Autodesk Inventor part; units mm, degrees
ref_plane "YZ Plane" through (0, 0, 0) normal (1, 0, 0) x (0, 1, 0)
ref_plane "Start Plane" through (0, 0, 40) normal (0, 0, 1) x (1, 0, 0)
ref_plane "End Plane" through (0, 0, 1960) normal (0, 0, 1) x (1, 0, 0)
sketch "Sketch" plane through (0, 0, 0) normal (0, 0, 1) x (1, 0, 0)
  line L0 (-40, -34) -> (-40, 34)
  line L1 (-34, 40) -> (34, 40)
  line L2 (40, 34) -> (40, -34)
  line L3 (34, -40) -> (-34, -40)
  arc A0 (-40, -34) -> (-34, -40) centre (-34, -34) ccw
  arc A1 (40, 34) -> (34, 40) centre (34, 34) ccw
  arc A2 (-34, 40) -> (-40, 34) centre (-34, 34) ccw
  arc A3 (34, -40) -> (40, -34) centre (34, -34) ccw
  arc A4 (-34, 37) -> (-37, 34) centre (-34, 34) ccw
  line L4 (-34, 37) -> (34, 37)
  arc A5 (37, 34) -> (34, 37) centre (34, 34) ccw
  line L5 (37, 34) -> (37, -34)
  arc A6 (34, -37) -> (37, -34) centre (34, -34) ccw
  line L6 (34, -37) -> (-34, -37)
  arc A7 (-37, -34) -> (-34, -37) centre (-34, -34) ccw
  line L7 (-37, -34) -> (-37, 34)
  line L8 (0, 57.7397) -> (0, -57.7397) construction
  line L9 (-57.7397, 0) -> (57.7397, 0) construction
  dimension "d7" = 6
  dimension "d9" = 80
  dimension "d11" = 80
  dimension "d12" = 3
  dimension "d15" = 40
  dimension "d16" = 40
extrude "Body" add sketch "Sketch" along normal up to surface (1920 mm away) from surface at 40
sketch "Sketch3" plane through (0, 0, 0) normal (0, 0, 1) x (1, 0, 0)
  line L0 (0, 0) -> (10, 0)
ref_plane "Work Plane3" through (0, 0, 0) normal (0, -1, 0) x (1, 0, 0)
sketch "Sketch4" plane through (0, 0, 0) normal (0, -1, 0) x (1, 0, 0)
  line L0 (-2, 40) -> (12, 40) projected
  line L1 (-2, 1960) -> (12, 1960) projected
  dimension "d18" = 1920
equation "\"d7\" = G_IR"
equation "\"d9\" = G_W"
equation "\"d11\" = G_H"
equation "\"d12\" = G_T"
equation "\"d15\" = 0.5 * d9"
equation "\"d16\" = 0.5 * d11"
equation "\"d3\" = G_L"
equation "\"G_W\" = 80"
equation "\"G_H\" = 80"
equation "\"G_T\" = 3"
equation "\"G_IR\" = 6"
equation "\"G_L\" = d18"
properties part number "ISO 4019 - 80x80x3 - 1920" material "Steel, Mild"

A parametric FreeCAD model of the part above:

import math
import FreeCAD as App
import Part
import Sketcher
Q = App.Units.Quantity

doc = App.newDocument("Part")
body = doc.addObject("PartDesign::Body", "Body")

# Sketch on XY plane
sketch1 = doc.addObject("Sketcher::SketchObject", "Sketch")
body.addObject(sketch1)
sketch1.AttachmentSupport = (doc.XY_Plane, [""])
sketch1.MapMode = "FlatFace"
sketch1.AttachmentOffset = App.Placement(App.Vector(0, 0, 40), App.Rotation())
sketch1.addGeometry(Part.LineSegment(App.Vector(-40, 34, 0), App.Vector(-40, -34, 0)), False)
sketch1.addGeometry(Part.ArcOfCircle(Part.Circle(App.Vector(-34, -34, 0), App.Vector(0, 0, 1), 6), math.radians(180), math.radians(270)), False)
sketch1.addGeometry(Part.LineSegment(App.Vector(-34, -40, 0), App.Vector(34, -40, 0)), False)
sketch1.addGeometry(Part.ArcOfCircle(Part.Circle(App.Vector(34, -34, 0), App.Vector(0, 0, 1), 6), math.radians(-90), math.radians(0)), False)
sketch1.addGeometry(Part.LineSegment(App.Vector(40, -34, 0), App.Vector(40, 34, 0)), False)
sketch1.addGeometry(Part.ArcOfCircle(Part.Circle(App.Vector(34, 34, 0), App.Vector(0, 0, 1), 6), math.radians(0), math.radians(90)), False)
sketch1.addGeometry(Part.LineSegment(App.Vector(34, 40, 0), App.Vector(-34, 40, 0)), False)
sketch1.addGeometry(Part.ArcOfCircle(Part.Circle(App.Vector(-34, 34, 0), App.Vector(0, 0, 1), 6), math.radians(90), math.radians(180)), False)
sketch1.addGeometry(Part.ArcOfCircle(Part.Circle(App.Vector(-34, 34, 0), App.Vector(0, 0, 1), 3), math.radians(90), math.radians(180)), False)
sketch1.addGeometry(Part.LineSegment(App.Vector(-34, 37, 0), App.Vector(34, 37, 0)), False)
sketch1.addGeometry(Part.ArcOfCircle(Part.Circle(App.Vector(34, 34, 0), App.Vector(0, 0, 1), 3), math.radians(0), math.radians(90)), False)
sketch1.addGeometry(Part.LineSegment(App.Vector(37, 34, 0), App.Vector(37, -34, 0)), False)
sketch1.addGeometry(Part.ArcOfCircle(Part.Circle(App.Vector(34, -34, 0), App.Vector(0, 0, 1), 3), math.radians(-90), math.radians(0)), False)
sketch1.addGeometry(Part.LineSegment(App.Vector(34, -37, 0), App.Vector(-34, -37, 0)), False)
sketch1.addGeometry(Part.ArcOfCircle(Part.Circle(App.Vector(-34, -34, 0), App.Vector(0, 0, 1), 3), math.radians(180), math.radians(270)), False)
sketch1.addGeometry(Part.LineSegment(App.Vector(-37, -34, 0), App.Vector(-37, 34, 0)), False)
sketch1.addConstraint(Sketcher.Constraint("Tangent", 0, 2, 1, 1))
sketch1.addConstraint(Sketcher.Constraint("Tangent", 1, 2, 2, 1))
sketch1.addConstraint(Sketcher.Constraint("Tangent", 2, 2, 3, 1))
sketch1.addConstraint(Sketcher.Constraint("Tangent", 3, 2, 4, 1))
sketch1.addConstraint(Sketcher.Constraint("Tangent", 4, 2, 5, 1))
sketch1.addConstraint(Sketcher.Constraint("Tangent", 5, 2, 6, 1))
sketch1.addConstraint(Sketcher.Constraint("Tangent", 6, 2, 7, 1))
sketch1.addConstraint(Sketcher.Constraint("Tangent", 7, 2, 0, 1))
sketch1.addConstraint(Sketcher.Constraint("Tangent", 8, 1, 9, 1))
sketch1.addConstraint(Sketcher.Constraint("Tangent", 9, 2, 10, 2))
sketch1.addConstraint(Sketcher.Constraint("Tangent", 10, 1, 11, 1))
sketch1.addConstraint(Sketcher.Constraint("Tangent", 11, 2, 12, 2))
sketch1.addConstraint(Sketcher.Constraint("Tangent", 12, 1, 13, 1))
sketch1.addConstraint(Sketcher.Constraint("Tangent", 13, 2, 14, 2))
sketch1.addConstraint(Sketcher.Constraint("Tangent", 14, 1, 15, 1))
sketch1.addConstraint(Sketcher.Constraint("Tangent", 15, 2, 8, 2))
sketch1.addConstraint(Sketcher.Constraint("Vertical", 0))
sketch1.addConstraint(Sketcher.Constraint("Horizontal", 2))
sketch1.addConstraint(Sketcher.Constraint("Vertical", 4))
sketch1.addConstraint(Sketcher.Constraint("Horizontal", 6))
sketch1.addConstraint(Sketcher.Constraint("Horizontal", 9))
sketch1.addConstraint(Sketcher.Constraint("Vertical", 11))
sketch1.addConstraint(Sketcher.Constraint("Horizontal", 13))
sketch1.addConstraint(Sketcher.Constraint("Vertical", 15))
sketch1.addConstraint(Sketcher.Constraint("Coincident", 8, 3, 7, 3))
sketch1.addConstraint(Sketcher.Constraint("Coincident", 10, 3, 5, 3))
sketch1.addConstraint(Sketcher.Constraint("Coincident", 12, 3, 3, 3))
sketch1.addConstraint(Sketcher.Constraint("Equal", 1, 3))
sketch1.addConstraint(Sketcher.Constraint("Equal", 3, 5))
sketch1.addConstraint(Sketcher.Constraint("Equal", 5, 7))
sketch1.addConstraint(Sketcher.Constraint("Equal", 12, 14))
sketch1.addConstraint(Sketcher.Constraint("Symmetric", 1, 3, 5, 3, -1, 1))
sketch1.addConstraint(Sketcher.Constraint("Equal", 13, 0))
sketch1.addConstraint(Sketcher.Constraint("Radius", 1, Q("6 mm")))
sketch1.addConstraint(Sketcher.Constraint("Radius", 8, Q("3 mm")))
sketch1.addConstraint(Sketcher.Constraint("DistanceX", 0, 2, -1, 1, Q("40 mm")))
pad1 = doc.addObject("PartDesign::Pad", "Pad")
body.addObject(pad1)
pad1.Profile = sketch1
pad1.Length = 1920

doc.recompute()
